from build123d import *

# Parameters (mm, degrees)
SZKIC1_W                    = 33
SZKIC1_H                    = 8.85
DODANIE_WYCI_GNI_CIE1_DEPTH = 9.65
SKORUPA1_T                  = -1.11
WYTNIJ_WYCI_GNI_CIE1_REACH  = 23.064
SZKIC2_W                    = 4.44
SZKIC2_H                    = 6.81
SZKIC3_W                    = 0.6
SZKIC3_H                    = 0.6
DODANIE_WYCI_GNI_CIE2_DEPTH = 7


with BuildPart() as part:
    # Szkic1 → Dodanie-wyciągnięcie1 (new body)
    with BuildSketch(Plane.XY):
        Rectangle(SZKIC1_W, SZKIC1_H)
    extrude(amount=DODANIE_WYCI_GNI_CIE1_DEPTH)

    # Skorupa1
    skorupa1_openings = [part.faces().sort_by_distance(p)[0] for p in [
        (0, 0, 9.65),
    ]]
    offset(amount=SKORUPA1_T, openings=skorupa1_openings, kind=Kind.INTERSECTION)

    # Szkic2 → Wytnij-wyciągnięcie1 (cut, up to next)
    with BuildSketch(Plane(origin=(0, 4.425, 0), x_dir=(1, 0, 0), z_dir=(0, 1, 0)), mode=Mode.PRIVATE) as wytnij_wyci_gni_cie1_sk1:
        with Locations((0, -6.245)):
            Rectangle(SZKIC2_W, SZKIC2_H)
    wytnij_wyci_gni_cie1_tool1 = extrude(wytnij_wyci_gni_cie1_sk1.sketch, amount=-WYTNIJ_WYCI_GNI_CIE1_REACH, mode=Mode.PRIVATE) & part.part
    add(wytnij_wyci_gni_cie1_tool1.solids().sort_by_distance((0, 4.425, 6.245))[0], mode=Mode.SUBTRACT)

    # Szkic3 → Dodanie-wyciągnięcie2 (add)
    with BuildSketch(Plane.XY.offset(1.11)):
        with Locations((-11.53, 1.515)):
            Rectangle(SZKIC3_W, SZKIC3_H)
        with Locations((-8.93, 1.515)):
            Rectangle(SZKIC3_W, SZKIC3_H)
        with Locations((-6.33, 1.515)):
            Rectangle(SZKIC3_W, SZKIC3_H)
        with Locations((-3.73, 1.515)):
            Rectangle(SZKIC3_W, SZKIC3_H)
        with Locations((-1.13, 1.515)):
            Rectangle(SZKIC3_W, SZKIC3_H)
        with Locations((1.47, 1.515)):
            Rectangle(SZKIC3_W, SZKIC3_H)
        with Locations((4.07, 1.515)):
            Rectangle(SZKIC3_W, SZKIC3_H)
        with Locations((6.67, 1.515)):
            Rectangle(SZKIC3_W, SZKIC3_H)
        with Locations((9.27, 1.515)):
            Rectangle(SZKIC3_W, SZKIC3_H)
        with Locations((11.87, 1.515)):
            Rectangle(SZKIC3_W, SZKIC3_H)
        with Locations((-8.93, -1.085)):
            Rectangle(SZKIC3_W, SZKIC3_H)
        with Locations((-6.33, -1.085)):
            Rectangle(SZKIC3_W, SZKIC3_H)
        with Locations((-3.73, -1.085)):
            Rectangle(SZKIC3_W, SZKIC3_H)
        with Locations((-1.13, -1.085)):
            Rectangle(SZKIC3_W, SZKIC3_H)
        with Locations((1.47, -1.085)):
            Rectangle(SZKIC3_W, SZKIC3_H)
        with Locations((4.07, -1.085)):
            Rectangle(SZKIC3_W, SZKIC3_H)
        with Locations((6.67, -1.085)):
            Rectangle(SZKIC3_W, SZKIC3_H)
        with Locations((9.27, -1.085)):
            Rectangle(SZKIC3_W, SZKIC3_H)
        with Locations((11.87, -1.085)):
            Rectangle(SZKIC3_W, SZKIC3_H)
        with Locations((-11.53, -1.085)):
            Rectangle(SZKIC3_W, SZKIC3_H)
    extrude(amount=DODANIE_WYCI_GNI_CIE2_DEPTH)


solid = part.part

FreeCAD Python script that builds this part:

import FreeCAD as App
import Part
import Sketcher
from FreeCAD import Vector


def faces_at(feature, points):
    """Names of the faces that lie closest to the given points."""
    faces = feature.Shape.Faces
    near = lambda p: min(range(len(faces)), key=lambda i: faces[i].distToShape(Part.Vertex(*p))[0])
    return sorted({f"Face{near(p) + 1}" for p in points})

doc = App.newDocument("Part")
params = doc.addObject("Spreadsheet::Sheet", "Params")
for row, (alias, value) in enumerate([
    ("sketch1_width", "33 mm"),
    ("sketch1_height", "8.85 mm"),
    ("pad1_length", "9.65 mm"),
    ("thickness_wall", "1.11 mm"),
    ("sketch2_width", "4.44 mm"),
    ("sketch2_height", "6.81 mm"),
    ("sketch3_width", "0.6 mm"),
    ("pad2_length", "7 mm"),
], start=1):
    params.set(f"A{row}", alias)
    params.set(f"B{row}", "=" + value)
    params.setAlias(f"B{row}", alias)

body = doc.addObject("PartDesign::Body", "Body")

sketch1 = body.newObject("Sketcher::SketchObject", "Sketch")
sketch1.AttachmentSupport = (doc.getObject("XY_Plane"), [""])
sketch1.MapMode = "FlatFace"
sketch1.addGeometry(Part.LineSegment(Vector(-16.5, 4.425, 0), Vector(-16.5, -4.425, 0)), False)
sketch1.addGeometry(Part.LineSegment(Vector(-16.5, -4.425, 0), Vector(16.5, -4.425, 0)), False)
sketch1.addGeometry(Part.LineSegment(Vector(16.5, -4.425, 0), Vector(16.5, 4.425, 0)), False)
sketch1.addGeometry(Part.LineSegment(Vector(16.5, 4.425, 0), Vector(-16.5, 4.425, 0)), False)
sketch1.addConstraint(Sketcher.Constraint("Coincident", 0, 2, 1, 1))
sketch1.addConstraint(Sketcher.Constraint("Coincident", 1, 2, 2, 1))
sketch1.addConstraint(Sketcher.Constraint("Coincident", 2, 2, 3, 1))
sketch1.addConstraint(Sketcher.Constraint("Coincident", 3, 2, 0, 1))
sketch1.addConstraint(Sketcher.Constraint("Vertical", 0))
sketch1.addConstraint(Sketcher.Constraint("Horizontal", 1))
sketch1.addConstraint(Sketcher.Constraint("Vertical", 2))
sketch1.addConstraint(Sketcher.Constraint("Horizontal", 3))
sketch1.addConstraint(Sketcher.Constraint("Symmetric", 0, 2, 2, 2, -1, 1))
sketch1.addConstraint(Sketcher.Constraint("DistanceX", 1, 1, 1, 2, 33.0))
sketch1.addConstraint(Sketcher.Constraint("DistanceY", 0, 2, 0, 1, 8.85))
sketch1.setExpression("Constraints[9]", "Params.sketch1_width")
sketch1.setExpression("Constraints[10]", "Params.sketch1_height")
pad1 = body.newObject("PartDesign::Pad", "Pad")
pad1.Profile = sketch1
pad1.setExpression("Length", "Params.pad1_length")
doc.recompute()

thickness = body.newObject("PartDesign::Thickness", "Thickness")
thickness.Base = (pad1, faces_at(pad1, [(0, 0, 9.65)]))
thickness.setExpression("Value", "Params.thickness_wall")
thickness.Reversed = True
thickness.Join = "Intersection"

sketch2 = body.newObject("Sketcher::SketchObject", "Sketch001")
sketch2.AttachmentSupport = (doc.getObject("XZ_Plane"), [""])
sketch2.MapMode = "FlatFace"
sketch2.AttachmentOffset = App.Placement(Vector(0, 0, -4.425), App.Rotation())
sketch2.addGeometry(Part.LineSegment(Vector(-2.22, 2.84, 0), Vector(-2.22, 9.65, 0)), False)
sketch2.addGeometry(Part.LineSegment(Vector(-2.22, 9.65, 0), Vector(2.22, 9.65, 0)), False)
sketch2.addGeometry(Part.LineSegment(Vector(2.22, 9.65, 0), Vector(2.22, 2.84, 0)), False)
sketch2.addGeometry(Part.LineSegment(Vector(2.22, 2.84, 0), Vector(-2.22, 2.84, 0)), False)
sketch2.addConstraint(Sketcher.Constraint("Coincident", 0, 2, 1, 1))
sketch2.addConstraint(Sketcher.Constraint("Coincident", 1, 2, 2, 1))
sketch2.addConstraint(Sketcher.Constraint("Coincident", 2, 2, 3, 1))
sketch2.addConstraint(Sketcher.Constraint("Coincident", 3, 2, 0, 1))
sketch2.addConstraint(Sketcher.Constraint("Vertical", 0))
sketch2.addConstraint(Sketcher.Constraint("Horizontal", 1))
sketch2.addConstraint(Sketcher.Constraint("Vertical", 2))
sketch2.addConstraint(Sketcher.Constraint("Horizontal", 3))
sketch2.addConstraint(Sketcher.Constraint("DistanceX", 1, 1, 1, 2, 4.44))
sketch2.addConstraint(Sketcher.Constraint("DistanceY", 0, 1, 0, 2, 6.81))
sketch2.addConstraint(Sketcher.Constraint("DistanceX", 0, 2, -1, 1, 2.22))
sketch2.addConstraint(Sketcher.Constraint("DistanceY", -1, 1, 0, 2, 9.65))
sketch2.setExpression("Constraints[8]", "Params.sketch2_width")
sketch2.setExpression("Constraints[9]", "Params.sketch2_height")
pocket1 = body.newObject("PartDesign::Pocket", "Pocket")
pocket1.Profile = sketch2
pocket1.Type = "UpToFirst"
pocket1.Reversed = True

sketch3 = body.newObject("Sketcher::SketchObject", "Sketch002")
sketch3.AttachmentSupport = (doc.getObject("XY_Plane"), [""])
sketch3.MapMode = "FlatFace"
sketch3.AttachmentOffset = App.Placement(Vector(0, 0, 1.11), App.Rotation())
sketch3.addGeometry(Part.LineSegment(Vector(-11.83, 1.815, 0), Vector(-11.83, 1.215, 0)), False)
sketch3.addGeometry(Part.LineSegment(Vector(-11.83, 1.215, 0), Vector(-11.23, 1.215, 0)), False)
sketch3.addGeometry(Part.LineSegment(Vector(-11.23, 1.215, 0), Vector(-11.23, 1.815, 0)), False)
sketch3.addGeometry(Part.LineSegment(Vector(-11.23, 1.815, 0), Vector(-11.83, 1.815, 0)), False)
sketch3.addGeometry(Part.LineSegment(Vector(-9.23, 1.815, 0), Vector(-9.23, 1.215, 0)), False)
sketch3.addGeometry(Part.LineSegment(Vector(-9.23, 1.215, 0), Vector(-8.63, 1.215, 0)), False)
sketch3.addGeometry(Part.LineSegment(Vector(-8.63, 1.215, 0), Vector(-8.63, 1.815, 0)), False)
sketch3.addGeometry(Part.LineSegment(Vector(-8.63, 1.815, 0), Vector(-9.23, 1.815, 0)), False)
sketch3.addGeometry(Part.LineSegment(Vector(-6.63, 1.815, 0), Vector(-6.63, 1.215, 0)), False)
sketch3.addGeometry(Part.LineSegment(Vector(-6.63, 1.215, 0), Vector(-6.03, 1.215, 0)), False)
sketch3.addGeometry(Part.LineSegment(Vector(-6.03, 1.215, 0), Vector(-6.03, 1.815, 0)), False)
sketch3.addGeometry(Part.LineSegment(Vector(-6.03, 1.815, 0), Vector(-6.63, 1.815, 0)), False)
sketch3.addGeometry(Part.LineSegment(Vector(-4.03, 1.815, 0), Vector(-4.03, 1.215, 0)), False)
sketch3.addGeometry(Part.LineSegment(Vector(-4.03, 1.215, 0), Vector(-3.43, 1.215, 0)), False)
sketch3.addGeometry(Part.LineSegment(Vector(-3.43, 1.215, 0), Vector(-3.43, 1.815, 0)), False)
sketch3.addGeometry(Part.LineSegment(Vector(-3.43, 1.815, 0), Vector(-4.03, 1.815, 0)), False)
sketch3.addGeometry(Part.LineSegment(Vector(-1.43, 1.815, 0), Vector(-1.43, 1.215, 0)), False)
sketch3.addGeometry(Part.LineSegment(Vector(-1.43, 1.215, 0), Vector(-0.83, 1.215, 0)), False)
sketch3.addGeometry(Part.LineSegment(Vector(-0.83, 1.215, 0), Vector(-0.83, 1.815, 0)), False)
sketch3.addGeometry(Part.LineSegment(Vector(-0.83, 1.815, 0), Vector(-1.43, 1.815, 0)), False)
sketch3.addGeometry(Part.LineSegment(Vector(1.17, 1.815, 0), Vector(1.17, 1.215, 0)), False)
sketch3.addGeometry(Part.LineSegment(Vector(1.17, 1.215, 0), Vector(1.77, 1.215, 0)), False)
sketch3.addGeometry(Part.LineSegment(Vector(1.77, 1.215, 0), Vector(1.77, 1.815, 0)), False)
sketch3.addGeometry(Part.LineSegment(Vector(1.77, 1.815, 0), Vector(1.17, 1.815, 0)), False)
sketch3.addGeometry(Part.LineSegment(Vector(3.77, 1.815, 0), Vector(3.77, 1.215, 0)), False)
sketch3.addGeometry(Part.LineSegment(Vector(3.77, 1.215, 0), Vector(4.37, 1.215, 0)), False)
sketch3.addGeometry(Part.LineSegment(Vector(4.37, 1.215, 0), Vector(4.37, 1.815, 0)), False)
sketch3.addGeometry(Part.LineSegment(Vector(4.37, 1.815, 0), Vector(3.77, 1.815, 0)), False)
sketch3.addGeometry(Part.LineSegment(Vector(6.37, 1.815, 0), Vector(6.37, 1.215, 0)), False)
sketch3.addGeometry(Part.LineSegment(Vector(6.37, 1.215, 0), Vector(6.97, 1.215, 0)), False)
sketch3.addGeometry(Part.LineSegment(Vector(6.97, 1.215, 0), Vector(6.97, 1.815, 0)), False)
sketch3.addGeometry(Part.LineSegment(Vector(6.97, 1.815, 0), Vector(6.37, 1.815, 0)), False)
sketch3.addGeometry(Part.LineSegment(Vector(8.97, 1.815, 0), Vector(8.97, 1.215, 0)), False)
sketch3.addGeometry(Part.LineSegment(Vector(8.97, 1.215, 0), Vector(9.57, 1.215, 0)), False)
sketch3.addGeometry(Part.LineSegment(Vector(9.57, 1.215, 0), Vector(9.57, 1.815, 0)), False)
sketch3.addGeometry(Part.LineSegment(Vector(9.57, 1.815, 0), Vector(8.97, 1.815, 0)), False)
sketch3.addGeometry(Part.LineSegment(Vector(11.57, 1.815, 0), Vector(11.57, 1.215, 0)), False)
sketch3.addGeometry(Part.LineSegment(Vector(11.57, 1.215, 0), Vector(12.17, 1.215, 0)), False)
sketch3.addGeometry(Part.LineSegment(Vector(12.17, 1.215, 0), Vector(12.17, 1.815, 0)), False)
sketch3.addGeometry(Part.LineSegment(Vector(12.17, 1.815, 0), Vector(11.57, 1.815, 0)), False)
sketch3.addGeometry(Part.LineSegment(Vector(-9.23, -0.785, 0), Vector(-9.23, -1.385, 0)), False)
sketch3.addGeometry(Part.LineSegment(Vector(-9.23, -1.385, 0), Vector(-8.63, -1.385, 0)), False)
sketch3.addGeometry(Part.LineSegment(Vector(-8.63, -1.385, 0), Vector(-8.63, -0.785, 0)), False)
sketch3.addGeometry(Part.LineSegment(Vector(-8.63, -0.785, 0), Vector(-9.23, -0.785, 0)), False)
sketch3.addGeometry(Part.LineSegment(Vector(-6.63, -0.785, 0), Vector(-6.63, -1.385, 0)), False)
sketch3.addGeometry(Part.LineSegment(Vector(-6.63, -1.385, 0), Vector(-6.03, -1.385, 0)), False)
sketch3.addGeometry(Part.LineSegment(Vector(-6.03, -1.385, 0), Vector(-6.03, -0.785, 0)), False)
sketch3.addGeometry(Part.LineSegment(Vector(-6.03, -0.785, 0), Vector(-6.63, -0.785, 0)), False)
sketch3.addGeometry(Part.LineSegment(Vector(-4.03, -0.785, 0), Vector(-4.03, -1.385, 0)), False)
sketch3.addGeometry(Part.LineSegment(Vector(-4.03, -1.385, 0), Vector(-3.43, -1.385, 0)), False)
sketch3.addGeometry(Part.LineSegment(Vector(-3.43, -1.385, 0), Vector(-3.43, -0.785, 0)), False)
sketch3.addGeometry(Part.LineSegment(Vector(-3.43, -0.785, 0), Vector(-4.03, -0.785, 0)), False)
sketch3.addGeometry(Part.LineSegment(Vector(-1.43, -0.785, 0), Vector(-1.43, -1.385, 0)), False)
sketch3.addGeometry(Part.LineSegment(Vector(-1.43, -1.385, 0), Vector(-0.83, -1.385, 0)), False)
sketch3.addGeometry(Part.LineSegment(Vector(-0.83, -1.385, 0), Vector(-0.83, -0.785, 0)), False)
sketch3.addGeometry(Part.LineSegment(Vector(-0.83, -0.785, 0), Vector(-1.43, -0.785, 0)), False)
sketch3.addGeometry(Part.LineSegment(Vector(1.17, -0.785, 0), Vector(1.17, -1.385, 0)), False)
sketch3.addGeometry(Part.LineSegment(Vector(1.17, -1.385, 0), Vector(1.77, -1.385, 0)), False)
sketch3.addGeometry(Part.LineSegment(Vector(1.77, -1.385, 0), Vector(1.77, -0.785, 0)), False)
sketch3.addGeometry(Part.LineSegment(Vector(1.77, -0.785, 0), Vector(1.17, -0.785, 0)), False)
sketch3.addGeometry(Part.LineSegment(Vector(3.77, -0.785, 0), Vector(3.77, -1.385, 0)), False)
sketch3.addGeometry(Part.LineSegment(Vector(3.77, -1.385, 0), Vector(4.37, -1.385, 0)), False)
sketch3.addGeometry(Part.LineSegment(Vector(4.37, -1.385, 0), Vector(4.37, -0.785, 0)), False)
sketch3.addGeometry(Part.LineSegment(Vector(4.37, -0.785, 0), Vector(3.77, -0.785, 0)), False)
sketch3.addGeometry(Part.LineSegment(Vector(6.37, -0.785, 0), Vector(6.37, -1.385, 0)), False)
sketch3.addGeometry(Part.LineSegment(Vector(6.37, -1.385, 0), Vector(6.97, -1.385, 0)), False)
sketch3.addGeometry(Part.LineSegment(Vector(6.97, -1.385, 0), Vector(6.97, -0.785, 0)), False)
sketch3.addGeometry(Part.LineSegment(Vector(6.97, -0.785, 0), Vector(6.37, -0.785, 0)), False)
sketch3.addGeometry(Part.LineSegment(Vector(8.97, -0.785, 0), Vector(8.97, -1.385, 0)), False)
sketch3.addGeometry(Part.LineSegment(Vector(8.97, -1.385, 0), Vector(9.57, -1.385, 0)), False)
sketch3.addGeometry(Part.LineSegment(Vector(9.57, -1.385, 0), Vector(9.57, -0.785, 0)), False)
sketch3.addGeometry(Part.LineSegment(Vector(9.57, -0.785, 0), Vector(8.97, -0.785, 0)), False)
sketch3.addGeometry(Part.LineSegment(Vector(11.57, -0.785, 0), Vector(11.57, -1.385, 0)), False)
sketch3.addGeometry(Part.LineSegment(Vector(11.57, -1.385, 0), Vector(12.17, -1.385, 0)), False)
sketch3.addGeometry(Part.LineSegment(Vector(12.17, -1.385, 0), Vector(12.17, -0.785, 0)), False)
sketch3.addGeometry(Part.LineSegment(Vector(12.17, -0.785, 0), Vector(11.57, -0.785, 0)), False)
sketch3.addGeometry(Part.LineSegment(Vector(-11.83, -0.785, 0), Vector(-11.83, -1.385, 0)), False)
sketch3.addGeometry(Part.LineSegment(Vector(-11.83, -1.385, 0), Vector(-11.23, -1.385, 0)), False)
sketch3.addGeometry(Part.LineSegment(Vector(-11.23, -1.385, 0), Vector(-11.23, -0.785, 0)), False)
sketch3.addGeometry(Part.LineSegment(Vector(-11.23, -0.785, 0), Vector(-11.83, -0.785, 0)), False)
sketch3.addConstraint(Sketcher.Constraint("Coincident", 0, 2, 1, 1))
sketch3.addConstraint(Sketcher.Constraint("Coincident", 1, 2, 2, 1))
sketch3.addConstraint(Sketcher.Constraint("Coincident", 2, 2, 3, 1))
sketch3.addConstraint(Sketcher.Constraint("Coincident", 3, 2, 0, 1))
sketch3.addConstraint(Sketcher.Constraint("Coincident", 4, 2, 5, 1))
sketch3.addConstraint(Sketcher.Constraint("Coincident", 5, 2, 6, 1))
sketch3.addConstraint(Sketcher.Constraint("Coincident", 6, 2, 7, 1))
sketch3.addConstraint(Sketcher.Constraint("Coincident", 7, 2, 4, 1))
sketch3.addConstraint(Sketcher.Constraint("Coincident", 8, 2, 9, 1))
sketch3.addConstraint(Sketcher.Constraint("Coincident", 9, 2, 10, 1))
sketch3.addConstraint(Sketcher.Constraint("Coincident", 10, 2, 11, 1))
sketch3.addConstraint(Sketcher.Constraint("Coincident", 11, 2, 8, 1))
sketch3.addConstraint(Sketcher.Constraint("Coincident", 12, 2, 13, 1))
sketch3.addConstraint(Sketcher.Constraint("Coincident", 13, 2, 14, 1))
sketch3.addConstraint(Sketcher.Constraint("Coincident", 14, 2, 15, 1))
sketch3.addConstraint(Sketcher.Constraint("Coincident", 15, 2, 12, 1))
sketch3.addConstraint(Sketcher.Constraint("Coincident", 16, 2, 17, 1))
sketch3.addConstraint(Sketcher.Constraint("Coincident", 17, 2, 18, 1))
sketch3.addConstraint(Sketcher.Constraint("Coincident", 18, 2, 19, 1))
sketch3.addConstraint(Sketcher.Constraint("Coincident", 19, 2, 16, 1))
sketch3.addConstraint(Sketcher.Constraint("Coincident", 20, 2, 21, 1))
sketch3.addConstraint(Sketcher.Constraint("Coincident", 21, 2, 22, 1))
sketch3.addConstraint(Sketcher.Constraint("Coincident", 22, 2, 23, 1))
sketch3.addConstraint(Sketcher.Constraint("Coincident", 23, 2, 20, 1))
sketch3.addConstraint(Sketcher.Constraint("Coincident", 24, 2, 25, 1))
sketch3.addConstraint(Sketcher.Constraint("Coincident", 25, 2, 26, 1))
sketch3.addConstraint(Sketcher.Constraint("Coincident", 26, 2, 27, 1))
sketch3.addConstraint(Sketcher.Constraint("Coincident", 27, 2, 24, 1))
sketch3.addConstraint(Sketcher.Constraint("Coincident", 28, 2, 29, 1))
sketch3.addConstraint(Sketcher.Constraint("Coincident", 29, 2, 30, 1))
sketch3.addConstraint(Sketcher.Constraint("Coincident", 30, 2, 31, 1))
sketch3.addConstraint(Sketcher.Constraint("Coincident", 31, 2, 28, 1))
sketch3.addConstraint(Sketcher.Constraint("Coincident", 32, 2, 33, 1))
sketch3.addConstraint(Sketcher.Constraint("Coincident", 33, 2, 34, 1))
sketch3.addConstraint(Sketcher.Constraint("Coincident", 34, 2, 35, 1))
sketch3.addConstraint(Sketcher.Constraint("Coincident", 35, 2, 32, 1))
sketch3.addConstraint(Sketcher.Constraint("Coincident", 36, 2, 37, 1))
sketch3.addConstraint(Sketcher.Constraint("Coincident", 37, 2, 38, 1))
sketch3.addConstraint(Sketcher.Constraint("Coincident", 38, 2, 39, 1))
sketch3.addConstraint(Sketcher.Constraint("Coincident", 39, 2, 36, 1))
sketch3.addConstraint(Sketcher.Constraint("Coincident", 40, 2, 41, 1))
sketch3.addConstraint(Sketcher.Constraint("Coincident", 41, 2, 42, 1))
sketch3.addConstraint(Sketcher.Constraint("Coincident", 42, 2, 43, 1))
sketch3.addConstraint(Sketcher.Constraint("Coincident", 43, 2, 40, 1))
sketch3.addConstraint(Sketcher.Constraint("Coincident", 44, 2, 45, 1))
sketch3.addConstraint(Sketcher.Constraint("Coincident", 45, 2, 46, 1))
sketch3.addConstraint(Sketcher.Constraint("Coincident", 46, 2, 47, 1))
sketch3.addConstraint(Sketcher.Constraint("Coincident", 47, 2, 44, 1))
sketch3.addConstraint(Sketcher.Constraint("Coincident", 48, 2, 49, 1))
sketch3.addConstraint(Sketcher.Constraint("Coincident", 49, 2, 50, 1))
sketch3.addConstraint(Sketcher.Constraint("Coincident", 50, 2, 51, 1))
sketch3.addConstraint(Sketcher.Constraint("Coincident", 51, 2, 48, 1))
sketch3.addConstraint(Sketcher.Constraint("Coincident", 52, 2, 53, 1))
sketch3.addConstraint(Sketcher.Constraint("Coincident", 53, 2, 54, 1))
sketch3.addConstraint(Sketcher.Constraint("Coincident", 54, 2, 55, 1))
sketch3.addConstraint(Sketcher.Constraint("Coincident", 55, 2, 52, 1))
sketch3.addConstraint(Sketcher.Constraint("Coincident", 56, 2, 57, 1))
sketch3.addConstraint(Sketcher.Constraint("Coincident", 57, 2, 58, 1))
sketch3.addConstraint(Sketcher.Constraint("Coincident", 58, 2, 59, 1))
sketch3.addConstraint(Sketcher.Constraint("Coincident", 59, 2, 56, 1))
sketch3.addConstraint(Sketcher.Constraint("Coincident", 60, 2, 61, 1))
sketch3.addConstraint(Sketcher.Constraint("Coincident", 61, 2, 62, 1))
sketch3.addConstraint(Sketcher.Constraint("Coincident", 62, 2, 63, 1))
sketch3.addConstraint(Sketcher.Constraint("Coincident", 63, 2, 60, 1))
sketch3.addConstraint(Sketcher.Constraint("Coincident", 64, 2, 65, 1))
sketch3.addConstraint(Sketcher.Constraint("Coincident", 65, 2, 66, 1))
sketch3.addConstraint(Sketcher.Constraint("Coincident", 66, 2, 67, 1))
sketch3.addConstraint(Sketcher.Constraint("Coincident", 67, 2, 64, 1))
sketch3.addConstraint(Sketcher.Constraint("Coincident", 68, 2, 69, 1))
sketch3.addConstraint(Sketcher.Constraint("Coincident", 69, 2, 70, 1))
sketch3.addConstraint(Sketcher.Constraint("Coincident", 70, 2, 71, 1))
sketch3.addConstraint(Sketcher.Constraint("Coincident", 71, 2, 68, 1))
sketch3.addConstraint(Sketcher.Constraint("Coincident", 72, 2, 73, 1))
sketch3.addConstraint(Sketcher.Constraint("Coincident", 73, 2, 74, 1))
sketch3.addConstraint(Sketcher.Constraint("Coincident", 74, 2, 75, 1))
sketch3.addConstraint(Sketcher.Constraint("Coincident", 75, 2, 72, 1))
sketch3.addConstraint(Sketcher.Constraint("Coincident", 76, 2, 77, 1))
sketch3.addConstraint(Sketcher.Constraint("Coincident", 77, 2, 78, 1))
sketch3.addConstraint(Sketcher.Constraint("Coincident", 78, 2, 79, 1))
sketch3.addConstraint(Sketcher.Constraint("Coincident", 79, 2, 76, 1))
sketch3.addConstraint(Sketcher.Constraint("Vertical", 0))
sketch3.addConstraint(Sketcher.Constraint("Horizontal", 1))
sketch3.addConstraint(Sketcher.Constraint("Vertical", 2))
sketch3.addConstraint(Sketcher.Constraint("Horizontal", 3))
sketch3.addConstraint(Sketcher.Constraint("Vertical", 4))
sketch3.addConstraint(Sketcher.Constraint("Horizontal", 5))
sketch3.addConstraint(Sketcher.Constraint("Vertical", 6))
sketch3.addConstraint(Sketcher.Constraint("Horizontal", 7))
sketch3.addConstraint(Sketcher.Constraint("Vertical", 8))
sketch3.addConstraint(Sketcher.Constraint("Horizontal", 9))
sketch3.addConstraint(Sketcher.Constraint("Vertical", 10))
sketch3.addConstraint(Sketcher.Constraint("Horizontal", 11))
sketch3.addConstraint(Sketcher.Constraint("Vertical", 12))
sketch3.addConstraint(Sketcher.Constraint("Horizontal", 13))
sketch3.addConstraint(Sketcher.Constraint("Vertical", 14))
sketch3.addConstraint(Sketcher.Constraint("Horizontal", 15))
sketch3.addConstraint(Sketcher.Constraint("Vertical", 16))
sketch3.addConstraint(Sketcher.Constraint("Horizontal", 17))
sketch3.addConstraint(Sketcher.Constraint("Vertical", 18))
sketch3.addConstraint(Sketcher.Constraint("Horizontal", 19))
sketch3.addConstraint(Sketcher.Constraint("Vertical", 20))
sketch3.addConstraint(Sketcher.Constraint("Horizontal", 21))
sketch3.addConstraint(Sketcher.Constraint("Vertical", 22))
sketch3.addConstraint(Sketcher.Constraint("Horizontal", 23))
sketch3.addConstraint(Sketcher.Constraint("Vertical", 24))
sketch3.addConstraint(Sketcher.Constraint("Horizontal", 25))
sketch3.addConstraint(Sketcher.Constraint("Vertical", 26))
sketch3.addConstraint(Sketcher.Constraint("Horizontal", 27))
sketch3.addConstraint(Sketcher.Constraint("Vertical", 28))
sketch3.addConstraint(Sketcher.Constraint("Horizontal", 29))
sketch3.addConstraint(Sketcher.Constraint("Vertical", 30))
sketch3.addConstraint(Sketcher.Constraint("Horizontal", 31))
sketch3.addConstraint(Sketcher.Constraint("Vertical", 32))
sketch3.addConstraint(Sketcher.Constraint("Horizontal", 33))
sketch3.addConstraint(Sketcher.Constraint("Vertical", 34))
sketch3.addConstraint(Sketcher.Constraint("Horizontal", 35))
sketch3.addConstraint(Sketcher.Constraint("Vertical", 36))
sketch3.addConstraint(Sketcher.Constraint("Horizontal", 37))
sketch3.addConstraint(Sketcher.Constraint("Vertical", 38))
sketch3.addConstraint(Sketcher.Constraint("Horizontal", 39))
sketch3.addConstraint(Sketcher.Constraint("Vertical", 40))
sketch3.addConstraint(Sketcher.Constraint("Horizontal", 41))
sketch3.addConstraint(Sketcher.Constraint("Vertical", 42))
sketch3.addConstraint(Sketcher.Constraint("Horizontal", 43))
sketch3.addConstraint(Sketcher.Constraint("Vertical", 44))
sketch3.addConstraint(Sketcher.Constraint("Horizontal", 45))
sketch3.addConstraint(Sketcher.Constraint("Vertical", 46))
sketch3.addConstraint(Sketcher.Constraint("Horizontal", 47))
sketch3.addConstraint(Sketcher.Constraint("Vertical", 48))
sketch3.addConstraint(Sketcher.Constraint("Horizontal", 49))
sketch3.addConstraint(Sketcher.Constraint("Vertical", 50))
sketch3.addConstraint(Sketcher.Constraint("Horizontal", 51))
sketch3.addConstraint(Sketcher.Constraint("Vertical", 52))
sketch3.addConstraint(Sketcher.Constraint("Horizontal", 53))
sketch3.addConstraint(Sketcher.Constraint("Vertical", 54))
sketch3.addConstraint(Sketcher.Constraint("Horizontal", 55))
sketch3.addConstraint(Sketcher.Constraint("Vertical", 56))
sketch3.addConstraint(Sketcher.Constraint("Horizontal", 57))
sketch3.addConstraint(Sketcher.Constraint("Vertical", 58))
sketch3.addConstraint(Sketcher.Constraint("Horizontal", 59))
sketch3.addConstraint(Sketcher.Constraint("Vertical", 60))
sketch3.addConstraint(Sketcher.Constraint("Horizontal", 61))
sketch3.addConstraint(Sketcher.Constraint("Vertical", 62))
sketch3.addConstraint(Sketcher.Constraint("Horizontal", 63))
sketch3.addConstraint(Sketcher.Constraint("Vertical", 64))
sketch3.addConstraint(Sketcher.Constraint("Horizontal", 65))
sketch3.addConstraint(Sketcher.Constraint("Vertical", 66))
sketch3.addConstraint(Sketcher.Constraint("Horizontal", 67))
sketch3.addConstraint(Sketcher.Constraint("Vertical", 68))
sketch3.addConstraint(Sketcher.Constraint("Horizontal", 69))
sketch3.addConstraint(Sketcher.Constraint("Vertical", 70))
sketch3.addConstraint(Sketcher.Constraint("Horizontal", 71))
sketch3.addConstraint(Sketcher.Constraint("Vertical", 72))
sketch3.addConstraint(Sketcher.Constraint("Horizontal", 73))
sketch3.addConstraint(Sketcher.Constraint("Vertical", 74))
sketch3.addConstraint(Sketcher.Constraint("Horizontal", 75))
sketch3.addConstraint(Sketcher.Constraint("Vertical", 76))
sketch3.addConstraint(Sketcher.Constraint("Horizontal", 77))
sketch3.addConstraint(Sketcher.Constraint("Vertical", 78))
sketch3.addConstraint(Sketcher.Constraint("Horizontal", 79))
sketch3.addConstraint(Sketcher.Constraint("Horizontal", 1, 2, 4, 2))
sketch3.addConstraint(Sketcher.Constraint("Horizontal", 3, 2, 6, 2))
sketch3.addConstraint(Sketcher.Constraint("Horizontal", 5, 2, 8, 2))
sketch3.addConstraint(Sketcher.Constraint("Horizontal", 7, 2, 10, 2))
sketch3.addConstraint(Sketcher.Constraint("Horizontal", 9, 2, 12, 2))
sketch3.addConstraint(Sketcher.Constraint("Horizontal", 11, 2, 14, 2))
sketch3.addConstraint(Sketcher.Constraint("Horizontal", 13, 2, 16, 2))
sketch3.addConstraint(Sketcher.Constraint("Horizontal", 15, 2, 18, 2))
sketch3.addConstraint(Sketcher.Constraint("Horizontal", 17, 2, 20, 2))
sketch3.addConstraint(Sketcher.Constraint("Horizontal", 19, 2, 22, 2))
sketch3.addConstraint(Sketcher.Constraint("Horizontal", 21, 2, 24, 2))
sketch3.addConstraint(Sketcher.Constraint("Horizontal", 23, 2, 26, 2))
sketch3.addConstraint(Sketcher.Constraint("Horizontal", 25, 2, 28, 2))
sketch3.addConstraint(Sketcher.Constraint("Horizontal", 27, 2, 30, 2))
sketch3.addConstraint(Sketcher.Constraint("Horizontal", 29, 2, 32, 2))
sketch3.addConstraint(Sketcher.Constraint("Horizontal", 31, 2, 34, 2))
sketch3.addConstraint(Sketcher.Constraint("Horizontal", 33, 2, 36, 2))
sketch3.addConstraint(Sketcher.Constraint("Horizontal", 35, 2, 38, 2))
sketch3.addConstraint(Sketcher.Constraint("Horizontal", 41, 2, 44, 2))
sketch3.addConstraint(Sketcher.Constraint("Horizontal", 43, 2, 46, 2))
sketch3.addConstraint(Sketcher.Constraint("Horizontal", 45, 2, 48, 2))
sketch3.addConstraint(Sketcher.Constraint("Horizontal", 47, 2, 50, 2))
sketch3.addConstraint(Sketcher.Constraint("Horizontal", 49, 2, 52, 2))
sketch3.addConstraint(Sketcher.Constraint("Horizontal", 51, 2, 54, 2))
sketch3.addConstraint(Sketcher.Constraint("Horizontal", 53, 2, 56, 2))
sketch3.addConstraint(Sketcher.Constraint("Horizontal", 55, 2, 58, 2))
sketch3.addConstraint(Sketcher.Constraint("Horizontal", 57, 2, 60, 2))
sketch3.addConstraint(Sketcher.Constraint("Horizontal", 59, 2, 62, 2))
sketch3.addConstraint(Sketcher.Constraint("Horizontal", 61, 2, 64, 2))
sketch3.addConstraint(Sketcher.Constraint("Horizontal", 63, 2, 66, 2))
sketch3.addConstraint(Sketcher.Constraint("Horizontal", 65, 2, 68, 2))
sketch3.addConstraint(Sketcher.Constraint("Horizontal", 67, 2, 70, 2))
sketch3.addConstraint(Sketcher.Constraint("Horizontal", 69, 2, 72, 2))
sketch3.addConstraint(Sketcher.Constraint("Horizontal", 71, 2, 74, 2))
sketch3.addConstraint(Sketcher.Constraint("Horizontal", 73, 2, 76, 2))
sketch3.addConstraint(Sketcher.Constraint("Horizontal", 75, 2, 78, 2))
sketch3.addConstraint(Sketcher.Constraint("Vertical", 7, 2, 40, 2))
sketch3.addConstraint(Sketcher.Constraint("Vertical", 6, 2, 41, 2))
sketch3.addConstraint(Sketcher.Constraint("Vertical", 11, 2, 44, 2))
sketch3.addConstraint(Sketcher.Constraint("Vertical", 10, 2, 45, 2))
sketch3.addConstraint(Sketcher.Constraint("Vertical", 15, 2, 48, 2))
sketch3.addConstraint(Sketcher.Constraint("Vertical", 14, 2, 49, 2))
sketch3.addConstraint(Sketcher.Constraint("Vertical", 19, 2, 52, 2))
sketch3.addConstraint(Sketcher.Constraint("Vertical", 18, 2, 53, 2))
sketch3.addConstraint(Sketcher.Constraint("Vertical", 23, 2, 56, 2))
sketch3.addConstraint(Sketcher.Constraint("Vertical", 22, 2, 57, 2))
sketch3.addConstraint(Sketcher.Constraint("Vertical", 27, 2, 60, 2))
sketch3.addConstraint(Sketcher.Constraint("Vertical", 26, 2, 61, 2))
sketch3.addConstraint(Sketcher.Constraint("Vertical", 31, 2, 64, 2))
sketch3.addConstraint(Sketcher.Constraint("Vertical", 30, 2, 65, 2))
sketch3.addConstraint(Sketcher.Constraint("Vertical", 35, 2, 68, 2))
sketch3.addConstraint(Sketcher.Constraint("Vertical", 34, 2, 69, 2))
sketch3.addConstraint(Sketcher.Constraint("Vertical", 39, 2, 72, 2))
sketch3.addConstraint(Sketcher.Constraint("Vertical", 38, 2, 73, 2))
sketch3.addConstraint(Sketcher.Constraint("Vertical", 3, 2, 76, 2))
sketch3.addConstraint(Sketcher.Constraint("Vertical", 2, 2, 77, 2))
sketch3.addConstraint(Sketcher.Constraint("Equal", 3, 5))
sketch3.addConstraint(Sketcher.Constraint("Equal", 7, 9))
sketch3.addConstraint(Sketcher.Constraint("Equal", 11, 13))
sketch3.addConstraint(Sketcher.Constraint("Equal", 15, 17))
sketch3.addConstraint(Sketcher.Constraint("Equal", 19, 21))
sketch3.addConstraint(Sketcher.Constraint("Equal", 23, 25))
sketch3.addConstraint(Sketcher.Constraint("Equal", 27, 29))
sketch3.addConstraint(Sketcher.Constraint("Equal", 31, 33))
sketch3.addConstraint(Sketcher.Constraint("Equal", 35, 37))
sketch3.addConstraint(Sketcher.Constraint("Equal", 79, 0))
sketch3.addConstraint(Sketcher.Constraint("Equal", 38, 40))
sketch3.addConstraint(Sketcher.Constraint("DistanceX", 1, 1, 1, 2, 0.6))
sketch3.addConstraint(Sketcher.Constraint("DistanceX", 0, 2, -1, 1, 11.83))
sketch3.addConstraint(Sketcher.Constraint("DistanceX", 4, 2, -1, 1, 9.23))
sketch3.addConstraint(Sketcher.Constraint("DistanceX", 8, 2, -1, 1, 6.63))
sketch3.addConstraint(Sketcher.Constraint("DistanceX", 12, 2, -1, 1, 4.03))
sketch3.addConstraint(Sketcher.Constraint("DistanceX", 16, 2, -1, 1, 1.43))
sketch3.addConstraint(Sketcher.Constraint("DistanceX", -1, 1, 20, 2, 1.17))
sketch3.addConstraint(Sketcher.Constraint("DistanceX", -1, 1, 24, 2, 3.77))
sketch3.addConstraint(Sketcher.Constraint("DistanceX", -1, 1, 28, 2, 6.37))
sketch3.addConstraint(Sketcher.Constraint("DistanceX", -1, 1, 32, 2, 8.97))
sketch3.addConstraint(Sketcher.Constraint("DistanceX", -1, 1, 36, 2, 11.57))
sketch3.addConstraint(Sketcher.Constraint("DistanceY", -1, 1, 0, 2, 1.215))
sketch3.addConstraint(Sketcher.Constraint("DistanceY", 40, 2, -1, 1, 1.385))
sketch3.setExpression("Constraints[227]", "Params.sketch3_width")
pad2 = body.newObject("PartDesign::Pad", "Pad001")
pad2.Profile = sketch3
pad2.setExpression("Length", "Params.pad2_length")

doc.recompute()
